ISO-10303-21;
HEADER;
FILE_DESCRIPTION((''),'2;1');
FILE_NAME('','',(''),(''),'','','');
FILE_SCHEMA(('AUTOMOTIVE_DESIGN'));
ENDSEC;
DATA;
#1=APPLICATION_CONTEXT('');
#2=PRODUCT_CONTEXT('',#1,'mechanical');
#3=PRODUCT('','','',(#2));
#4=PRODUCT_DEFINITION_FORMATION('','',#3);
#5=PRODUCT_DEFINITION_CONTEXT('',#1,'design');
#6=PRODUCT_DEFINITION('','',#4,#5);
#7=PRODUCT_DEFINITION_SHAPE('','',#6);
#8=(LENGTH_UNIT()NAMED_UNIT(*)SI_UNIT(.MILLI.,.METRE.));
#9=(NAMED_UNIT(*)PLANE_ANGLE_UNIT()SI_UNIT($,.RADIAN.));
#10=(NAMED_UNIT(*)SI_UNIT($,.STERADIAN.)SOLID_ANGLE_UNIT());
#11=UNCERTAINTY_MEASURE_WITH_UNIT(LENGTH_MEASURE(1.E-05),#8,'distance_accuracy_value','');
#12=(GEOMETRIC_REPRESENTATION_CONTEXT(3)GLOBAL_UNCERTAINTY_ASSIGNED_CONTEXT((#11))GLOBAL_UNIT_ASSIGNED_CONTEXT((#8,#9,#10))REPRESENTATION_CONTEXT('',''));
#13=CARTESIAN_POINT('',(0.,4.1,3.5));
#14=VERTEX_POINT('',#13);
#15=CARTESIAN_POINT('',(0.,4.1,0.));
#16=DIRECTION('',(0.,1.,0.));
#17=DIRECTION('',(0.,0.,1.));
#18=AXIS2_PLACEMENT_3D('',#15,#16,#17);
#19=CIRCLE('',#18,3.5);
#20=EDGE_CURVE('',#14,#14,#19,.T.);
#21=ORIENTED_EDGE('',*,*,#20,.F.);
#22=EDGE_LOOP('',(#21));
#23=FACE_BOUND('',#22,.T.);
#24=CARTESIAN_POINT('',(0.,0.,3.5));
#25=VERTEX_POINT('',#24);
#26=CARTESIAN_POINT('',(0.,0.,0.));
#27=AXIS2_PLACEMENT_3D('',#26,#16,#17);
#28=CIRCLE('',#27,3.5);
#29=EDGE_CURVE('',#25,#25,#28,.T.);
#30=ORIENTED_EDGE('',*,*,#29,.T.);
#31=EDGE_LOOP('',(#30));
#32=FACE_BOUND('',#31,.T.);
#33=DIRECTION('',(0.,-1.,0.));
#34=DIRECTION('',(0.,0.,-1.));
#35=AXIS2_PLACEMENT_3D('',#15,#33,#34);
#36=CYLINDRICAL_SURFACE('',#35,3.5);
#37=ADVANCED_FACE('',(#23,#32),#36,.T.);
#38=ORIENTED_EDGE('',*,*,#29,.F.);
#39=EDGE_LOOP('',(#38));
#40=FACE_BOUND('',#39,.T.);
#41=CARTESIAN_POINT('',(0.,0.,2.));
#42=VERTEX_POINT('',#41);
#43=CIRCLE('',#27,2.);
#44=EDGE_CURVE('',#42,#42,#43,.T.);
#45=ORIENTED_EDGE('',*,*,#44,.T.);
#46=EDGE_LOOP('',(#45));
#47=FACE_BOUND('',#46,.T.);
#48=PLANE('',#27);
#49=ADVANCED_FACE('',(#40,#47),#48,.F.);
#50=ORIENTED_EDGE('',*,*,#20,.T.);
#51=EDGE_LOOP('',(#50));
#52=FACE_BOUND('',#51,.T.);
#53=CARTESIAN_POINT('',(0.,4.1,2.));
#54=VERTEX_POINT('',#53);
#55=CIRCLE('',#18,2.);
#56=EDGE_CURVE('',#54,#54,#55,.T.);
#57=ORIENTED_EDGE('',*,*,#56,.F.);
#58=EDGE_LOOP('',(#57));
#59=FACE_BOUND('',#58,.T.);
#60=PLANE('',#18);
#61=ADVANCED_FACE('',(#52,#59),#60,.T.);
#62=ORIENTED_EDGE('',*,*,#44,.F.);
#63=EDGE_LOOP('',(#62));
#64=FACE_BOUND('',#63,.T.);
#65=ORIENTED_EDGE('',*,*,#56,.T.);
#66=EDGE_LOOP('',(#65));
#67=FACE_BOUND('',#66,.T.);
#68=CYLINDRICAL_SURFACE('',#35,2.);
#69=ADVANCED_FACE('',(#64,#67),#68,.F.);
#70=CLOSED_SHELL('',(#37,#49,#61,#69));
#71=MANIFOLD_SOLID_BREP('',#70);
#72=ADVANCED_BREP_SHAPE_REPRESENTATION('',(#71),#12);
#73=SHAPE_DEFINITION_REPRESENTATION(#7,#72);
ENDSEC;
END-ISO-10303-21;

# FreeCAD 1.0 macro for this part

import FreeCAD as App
import Part
import Sketcher
from FreeCAD import Vector

doc = App.newDocument("Part")
params = doc.addObject("Spreadsheet::Sheet", "Params")
for row, (alias, value) in enumerate([
    ("sketch1_diameter", "7 mm"),
    ("sketch1_diameter2", "4 mm"),
    ("pad1_length", "4.1 mm"),
], start=1):
    params.set(f"A{row}", alias)
    params.set(f"B{row}", "=" + value)
    params.setAlias(f"B{row}", alias)

body = doc.addObject("PartDesign::Body", "Body")

# Sketch on XZ plane
sketch1 = doc.addObject("Sketcher::SketchObject", "Sketch")
body.addObject(sketch1)
sketch1.AttachmentSupport = (doc.XZ_Plane, [""])
sketch1.MapMode = "FlatFace"
sketch1.addGeometry([
    Part.Circle(Vector(0, 0, 0), Vector(0, 0, 1), 3.5),
    Part.Circle(Vector(0, 0, 0), Vector(0, 0, 1), 2),
], False)
sketch1.addConstraint([
    Sketcher.Constraint("Coincident", 0, 3, -1, 1),
    Sketcher.Constraint("Coincident", 1, 3, -1, 1),
    Sketcher.Constraint("Diameter", 0, 7.0),
    Sketcher.Constraint("Diameter", 1, 4.0),
])
sketch1.setExpression("Constraints[2]", "Params.sketch1_diameter")
sketch1.setExpression("Constraints[3]", "Params.sketch1_diameter2")
pad1 = doc.addObject("PartDesign::Pad", "Pad")
body.addObject(pad1)
pad1.Profile = sketch1
pad1.setExpression("Length", "Params.pad1_length")
pad1.Reversed = True

doc.recompute()
